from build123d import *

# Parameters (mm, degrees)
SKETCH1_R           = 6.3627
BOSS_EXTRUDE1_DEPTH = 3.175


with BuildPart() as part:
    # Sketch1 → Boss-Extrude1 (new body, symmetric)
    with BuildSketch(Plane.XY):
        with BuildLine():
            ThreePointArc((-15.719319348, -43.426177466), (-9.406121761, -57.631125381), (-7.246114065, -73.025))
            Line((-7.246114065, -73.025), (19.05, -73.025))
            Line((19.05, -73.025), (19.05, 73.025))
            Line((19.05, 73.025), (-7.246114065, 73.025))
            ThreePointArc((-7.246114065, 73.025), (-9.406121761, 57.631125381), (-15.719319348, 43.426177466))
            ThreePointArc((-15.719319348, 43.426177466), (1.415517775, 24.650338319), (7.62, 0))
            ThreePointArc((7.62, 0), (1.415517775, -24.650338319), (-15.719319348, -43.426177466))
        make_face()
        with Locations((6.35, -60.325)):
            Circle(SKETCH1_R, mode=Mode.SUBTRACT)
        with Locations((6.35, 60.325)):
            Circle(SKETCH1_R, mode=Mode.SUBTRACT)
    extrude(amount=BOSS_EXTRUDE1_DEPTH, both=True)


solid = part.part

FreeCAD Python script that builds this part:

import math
import FreeCAD as App
import Part
import Sketcher
Q = App.Units.Quantity

doc = App.newDocument("Part")
body = doc.addObject("PartDesign::Body", "Body")

sketch1 = body.newObject("Sketcher::SketchObject", "Sketch")
sketch1.AttachmentSupport = (doc.getObject("XY_Plane"), [""])
sketch1.MapMode = "FlatFace"
sketch1.addGeometry(Part.ArcOfCircle(Part.Circle(App.Vector(-63, -73, 0), App.Vector(0, 0, 1), 56), math.radians(0), math.radians(32)), False)
sketch1.addGeometry(Part.LineSegment(App.Vector(-7, -73, 0), App.Vector(19, -73, 0)), False)
sketch1.addGeometry(Part.LineSegment(App.Vector(19, -73, 0), App.Vector(19, 73, 0)), False)
sketch1.addGeometry(Part.LineSegment(App.Vector(19, 73, 0), App.Vector(-7, 73, 0)), False)
sketch1.addGeometry(Part.ArcOfCircle(Part.Circle(App.Vector(-63, 73, 0), App.Vector(0, 0, 1), 56), math.radians(-32), math.radians(0)), False)
sketch1.addGeometry(Part.ArcOfCircle(Part.Circle(App.Vector(-44, 0, 0), App.Vector(0, 0, 1), 52), math.radians(-57), math.radians(57)), False)
sketch1.addGeometry(Part.Circle(App.Vector(6, -60, 0), App.Vector(0, 0, 1), 6), False)
sketch1.addGeometry(Part.Circle(App.Vector(6, 60, 0), App.Vector(0, 0, 1), 6), False)
sketch1.addConstraint(Sketcher.Constraint("Coincident", 0, 1, 1, 1))
sketch1.addConstraint(Sketcher.Constraint("Coincident", 1, 2, 2, 1))
sketch1.addConstraint(Sketcher.Constraint("Coincident", 2, 2, 3, 1))
sketch1.addConstraint(Sketcher.Constraint("Coincident", 3, 2, 4, 2))
sketch1.addConstraint(Sketcher.Constraint("Coincident", 4, 1, 5, 2))
sketch1.addConstraint(Sketcher.Constraint("Coincident", 5, 1, 0, 2))
sketch1.addConstraint(Sketcher.Constraint("Horizontal", 1))
sketch1.addConstraint(Sketcher.Constraint("Vertical", 2))
sketch1.addConstraint(Sketcher.Constraint("Horizontal", 3))
sketch1.addConstraint(Sketcher.Constraint("Equal", 0, 4))
sketch1.addConstraint(Sketcher.Constraint("Equal", 6, 7))
sketch1.addConstraint(Sketcher.Constraint("Symmetric", 0, 3, 4, 3, -1))
sketch1.addConstraint(Sketcher.Constraint("Symmetric", 6, 3, 7, 3, -1))
sketch1.addConstraint(Sketcher.Constraint("PointOnObject", 5, 3, -1))
sketch1.addConstraint(Sketcher.Constraint("Horizontal", 4, 3, 2, 2))
sketch1.addConstraint(Sketcher.Constraint("Radius", 5, Q("2.05 in")))
sketch1.addConstraint(Sketcher.Constraint("Diameter", 6, Q("0.501 in")))
sketch1.addConstraint(Sketcher.Constraint("DistanceX", 5, 3, 6, 3, Q("2 in")))
sketch1.addConstraint(Sketcher.Constraint("DistanceY", 2, 1, 2, 2, Q("5.75 in")))
sketch1.addConstraint(Sketcher.Constraint("DistanceY", 0, 3, 6, 3, Q("0.5 in")))
sketch1.addConstraint(Sketcher.Constraint("DistanceY", 0, 1, 6, 3, Q("0.5 in")))
sketch1.addConstraint(Sketcher.Constraint("DistanceX", 6, 3, 1, 2, Q("0.5 in")))
sketch1.addConstraint(Sketcher.Constraint("DistanceX", 5, 3, -1, 1, Q("1.75 in")))
sketch1.addConstraint(Sketcher.Constraint("Radius", 0, 55.934294))
sketch1.addConstraint(Sketcher.Constraint("DistanceX", 1, 1, 1, 2, 26.296114))
pad1 = body.newObject("PartDesign::Pad", "Pad")
pad1.Profile = sketch1
pad1.Length = Q("0.25 in")
pad1.Midplane = True

doc.recompute()
